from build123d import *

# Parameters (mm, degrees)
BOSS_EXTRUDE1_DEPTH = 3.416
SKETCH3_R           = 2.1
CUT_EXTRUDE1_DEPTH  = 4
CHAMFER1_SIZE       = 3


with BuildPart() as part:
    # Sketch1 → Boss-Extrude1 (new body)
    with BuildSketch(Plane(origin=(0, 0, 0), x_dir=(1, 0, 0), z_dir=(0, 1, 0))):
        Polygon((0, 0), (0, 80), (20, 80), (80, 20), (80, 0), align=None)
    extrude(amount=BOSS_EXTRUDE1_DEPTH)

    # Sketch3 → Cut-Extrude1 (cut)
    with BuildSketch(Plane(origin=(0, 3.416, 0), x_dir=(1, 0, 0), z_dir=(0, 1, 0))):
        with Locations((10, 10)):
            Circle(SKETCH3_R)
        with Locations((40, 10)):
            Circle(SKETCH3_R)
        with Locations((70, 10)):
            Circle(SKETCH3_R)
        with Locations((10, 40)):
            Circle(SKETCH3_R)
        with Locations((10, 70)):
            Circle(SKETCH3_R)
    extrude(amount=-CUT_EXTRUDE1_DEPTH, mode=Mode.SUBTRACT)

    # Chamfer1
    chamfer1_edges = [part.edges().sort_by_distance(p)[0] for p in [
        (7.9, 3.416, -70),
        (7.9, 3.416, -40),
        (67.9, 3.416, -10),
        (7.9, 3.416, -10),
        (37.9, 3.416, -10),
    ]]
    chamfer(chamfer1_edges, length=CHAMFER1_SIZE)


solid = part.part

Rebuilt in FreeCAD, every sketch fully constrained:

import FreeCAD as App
import Part
import Sketcher
from FreeCAD import Vector
Q = App.Units.Quantity


def edges_at(feature, points):
    """Names of the edges that pass closest to the given points."""
    edges = feature.Shape.Edges
    near = lambda p: min(range(len(edges)), key=lambda i: edges[i].distToShape(Part.Vertex(*p))[0])
    return sorted({f"Edge{near(p) + 1}" for p in points})

doc = App.newDocument("Part")
body = doc.addObject("PartDesign::Body", "Body")

sketch1 = body.newObject("Sketcher::SketchObject", "Sketch")
sketch1.AttachmentSupport = (doc.getObject("XZ_Plane"), [""])
sketch1.MapMode = "FlatFace"
sketch1.addGeometry([
    Part.LineSegment(Vector(0, -80, 0), Vector(0, 0, 0)),
    Part.LineSegment(Vector(0, 0, 0), Vector(80, 0, 0)),
    Part.LineSegment(Vector(80, 0, 0), Vector(80, -20, 0)),
    Part.LineSegment(Vector(80, -20, 0), Vector(20, -80, 0)),
    Part.LineSegment(Vector(20, -80, 0), Vector(0, -80, 0)),
], False)
sketch1.addConstraint([
    Sketcher.Constraint("Coincident", 0, 2, 1, 1),
    Sketcher.Constraint("Coincident", 1, 2, 2, 1),
    Sketcher.Constraint("Coincident", 2, 2, 3, 1),
    Sketcher.Constraint("Coincident", 3, 2, 4, 1),
    Sketcher.Constraint("Coincident", 4, 2, 0, 1),
    Sketcher.Constraint("Vertical", 0),
    Sketcher.Constraint("Horizontal", 1),
    Sketcher.Constraint("Vertical", 2),
    Sketcher.Constraint("Horizontal", 4),
    Sketcher.Constraint("Coincident", 0, 2, -1, 1),
    Sketcher.Constraint("Equal", 1, 0),
    Sketcher.Constraint("Equal", 4, 2),
    Sketcher.Constraint("DistanceX", 1, 1, 1, 2, Q("80 mm")),
    Sketcher.Constraint("DistanceX", 4, 2, 4, 1, Q("20 mm")),
])
pad1 = body.newObject("PartDesign::Pad", "Pad")
pad1.Profile = sketch1
pad1.Length = 3.416
pad1.Reversed = True

sketch2 = body.newObject("Sketcher::SketchObject", "Sketch001")
sketch2.AttachmentSupport = (doc.getObject("XZ_Plane"), [""])
sketch2.MapMode = "FlatFace"
sketch2.AttachmentOffset = App.Placement(Vector(0, 0, -3.416), App.Rotation())
sketch2.addGeometry([
    Part.Circle(Vector(10, -10, 0), Vector(0, 0, 1), 2.1),
    Part.Circle(Vector(40, -10, 0), Vector(0, 0, 1), 2.1),
    Part.Circle(Vector(70, -10, 0), Vector(0, 0, 1), 2.1),
    Part.Circle(Vector(10, -40, 0), Vector(0, 0, 1), 2.1),
    Part.Circle(Vector(10, -70, 0), Vector(0, 0, 1), 2.1),
], False)
sketch2.addConstraint([
    Sketcher.Constraint("Equal", 0, 1),
    Sketcher.Constraint("Equal", 1, 2),
    Sketcher.Constraint("Equal", 2, 3),
    Sketcher.Constraint("Equal", 3, 4),
    Sketcher.Constraint("Horizontal", 0, 3, 1, 3),
    Sketcher.Constraint("Horizontal", 1, 3, 2, 3),
    Sketcher.Constraint("Vertical", 0, 3, 3, 3),
    Sketcher.Constraint("Vertical", 3, 3, 4, 3),
    Sketcher.Constraint("Diameter", 0, Q("4.2 mm")),
    Sketcher.Constraint("DistanceX", -1, 1, 0, 3, Q("10 mm")),
    Sketcher.Constraint("DistanceY", 0, 3, -1, 1, Q("10 mm")),
    Sketcher.Constraint("DistanceX", -1, 1, 1, 3, Q("40 mm")),
    Sketcher.Constraint("DistanceX", -1, 1, 2, 3, Q("70 mm")),
    Sketcher.Constraint("DistanceY", 3, 3, -1, 1, Q("40 mm")),
    Sketcher.Constraint("DistanceY", 4, 3, -1, 1, Q("70 mm")),
])
pocket1 = body.newObject("PartDesign::Pocket", "Pocket")
pocket1.Profile = sketch2
pocket1.Length = 4
pocket1.Reversed = True
doc.recompute()

chamfer = body.newObject("PartDesign::Chamfer", "Chamfer")
chamfer.Base = (pocket1, edges_at(pocket1, [
    (7.9, 3.416, -70),
    (7.9, 3.416, -40),
    (67.9, 3.416, -10),
    (7.9, 3.416, -10),
    (37.9, 3.416, -10),
]))
chamfer.Size = 3

doc.recompute()
